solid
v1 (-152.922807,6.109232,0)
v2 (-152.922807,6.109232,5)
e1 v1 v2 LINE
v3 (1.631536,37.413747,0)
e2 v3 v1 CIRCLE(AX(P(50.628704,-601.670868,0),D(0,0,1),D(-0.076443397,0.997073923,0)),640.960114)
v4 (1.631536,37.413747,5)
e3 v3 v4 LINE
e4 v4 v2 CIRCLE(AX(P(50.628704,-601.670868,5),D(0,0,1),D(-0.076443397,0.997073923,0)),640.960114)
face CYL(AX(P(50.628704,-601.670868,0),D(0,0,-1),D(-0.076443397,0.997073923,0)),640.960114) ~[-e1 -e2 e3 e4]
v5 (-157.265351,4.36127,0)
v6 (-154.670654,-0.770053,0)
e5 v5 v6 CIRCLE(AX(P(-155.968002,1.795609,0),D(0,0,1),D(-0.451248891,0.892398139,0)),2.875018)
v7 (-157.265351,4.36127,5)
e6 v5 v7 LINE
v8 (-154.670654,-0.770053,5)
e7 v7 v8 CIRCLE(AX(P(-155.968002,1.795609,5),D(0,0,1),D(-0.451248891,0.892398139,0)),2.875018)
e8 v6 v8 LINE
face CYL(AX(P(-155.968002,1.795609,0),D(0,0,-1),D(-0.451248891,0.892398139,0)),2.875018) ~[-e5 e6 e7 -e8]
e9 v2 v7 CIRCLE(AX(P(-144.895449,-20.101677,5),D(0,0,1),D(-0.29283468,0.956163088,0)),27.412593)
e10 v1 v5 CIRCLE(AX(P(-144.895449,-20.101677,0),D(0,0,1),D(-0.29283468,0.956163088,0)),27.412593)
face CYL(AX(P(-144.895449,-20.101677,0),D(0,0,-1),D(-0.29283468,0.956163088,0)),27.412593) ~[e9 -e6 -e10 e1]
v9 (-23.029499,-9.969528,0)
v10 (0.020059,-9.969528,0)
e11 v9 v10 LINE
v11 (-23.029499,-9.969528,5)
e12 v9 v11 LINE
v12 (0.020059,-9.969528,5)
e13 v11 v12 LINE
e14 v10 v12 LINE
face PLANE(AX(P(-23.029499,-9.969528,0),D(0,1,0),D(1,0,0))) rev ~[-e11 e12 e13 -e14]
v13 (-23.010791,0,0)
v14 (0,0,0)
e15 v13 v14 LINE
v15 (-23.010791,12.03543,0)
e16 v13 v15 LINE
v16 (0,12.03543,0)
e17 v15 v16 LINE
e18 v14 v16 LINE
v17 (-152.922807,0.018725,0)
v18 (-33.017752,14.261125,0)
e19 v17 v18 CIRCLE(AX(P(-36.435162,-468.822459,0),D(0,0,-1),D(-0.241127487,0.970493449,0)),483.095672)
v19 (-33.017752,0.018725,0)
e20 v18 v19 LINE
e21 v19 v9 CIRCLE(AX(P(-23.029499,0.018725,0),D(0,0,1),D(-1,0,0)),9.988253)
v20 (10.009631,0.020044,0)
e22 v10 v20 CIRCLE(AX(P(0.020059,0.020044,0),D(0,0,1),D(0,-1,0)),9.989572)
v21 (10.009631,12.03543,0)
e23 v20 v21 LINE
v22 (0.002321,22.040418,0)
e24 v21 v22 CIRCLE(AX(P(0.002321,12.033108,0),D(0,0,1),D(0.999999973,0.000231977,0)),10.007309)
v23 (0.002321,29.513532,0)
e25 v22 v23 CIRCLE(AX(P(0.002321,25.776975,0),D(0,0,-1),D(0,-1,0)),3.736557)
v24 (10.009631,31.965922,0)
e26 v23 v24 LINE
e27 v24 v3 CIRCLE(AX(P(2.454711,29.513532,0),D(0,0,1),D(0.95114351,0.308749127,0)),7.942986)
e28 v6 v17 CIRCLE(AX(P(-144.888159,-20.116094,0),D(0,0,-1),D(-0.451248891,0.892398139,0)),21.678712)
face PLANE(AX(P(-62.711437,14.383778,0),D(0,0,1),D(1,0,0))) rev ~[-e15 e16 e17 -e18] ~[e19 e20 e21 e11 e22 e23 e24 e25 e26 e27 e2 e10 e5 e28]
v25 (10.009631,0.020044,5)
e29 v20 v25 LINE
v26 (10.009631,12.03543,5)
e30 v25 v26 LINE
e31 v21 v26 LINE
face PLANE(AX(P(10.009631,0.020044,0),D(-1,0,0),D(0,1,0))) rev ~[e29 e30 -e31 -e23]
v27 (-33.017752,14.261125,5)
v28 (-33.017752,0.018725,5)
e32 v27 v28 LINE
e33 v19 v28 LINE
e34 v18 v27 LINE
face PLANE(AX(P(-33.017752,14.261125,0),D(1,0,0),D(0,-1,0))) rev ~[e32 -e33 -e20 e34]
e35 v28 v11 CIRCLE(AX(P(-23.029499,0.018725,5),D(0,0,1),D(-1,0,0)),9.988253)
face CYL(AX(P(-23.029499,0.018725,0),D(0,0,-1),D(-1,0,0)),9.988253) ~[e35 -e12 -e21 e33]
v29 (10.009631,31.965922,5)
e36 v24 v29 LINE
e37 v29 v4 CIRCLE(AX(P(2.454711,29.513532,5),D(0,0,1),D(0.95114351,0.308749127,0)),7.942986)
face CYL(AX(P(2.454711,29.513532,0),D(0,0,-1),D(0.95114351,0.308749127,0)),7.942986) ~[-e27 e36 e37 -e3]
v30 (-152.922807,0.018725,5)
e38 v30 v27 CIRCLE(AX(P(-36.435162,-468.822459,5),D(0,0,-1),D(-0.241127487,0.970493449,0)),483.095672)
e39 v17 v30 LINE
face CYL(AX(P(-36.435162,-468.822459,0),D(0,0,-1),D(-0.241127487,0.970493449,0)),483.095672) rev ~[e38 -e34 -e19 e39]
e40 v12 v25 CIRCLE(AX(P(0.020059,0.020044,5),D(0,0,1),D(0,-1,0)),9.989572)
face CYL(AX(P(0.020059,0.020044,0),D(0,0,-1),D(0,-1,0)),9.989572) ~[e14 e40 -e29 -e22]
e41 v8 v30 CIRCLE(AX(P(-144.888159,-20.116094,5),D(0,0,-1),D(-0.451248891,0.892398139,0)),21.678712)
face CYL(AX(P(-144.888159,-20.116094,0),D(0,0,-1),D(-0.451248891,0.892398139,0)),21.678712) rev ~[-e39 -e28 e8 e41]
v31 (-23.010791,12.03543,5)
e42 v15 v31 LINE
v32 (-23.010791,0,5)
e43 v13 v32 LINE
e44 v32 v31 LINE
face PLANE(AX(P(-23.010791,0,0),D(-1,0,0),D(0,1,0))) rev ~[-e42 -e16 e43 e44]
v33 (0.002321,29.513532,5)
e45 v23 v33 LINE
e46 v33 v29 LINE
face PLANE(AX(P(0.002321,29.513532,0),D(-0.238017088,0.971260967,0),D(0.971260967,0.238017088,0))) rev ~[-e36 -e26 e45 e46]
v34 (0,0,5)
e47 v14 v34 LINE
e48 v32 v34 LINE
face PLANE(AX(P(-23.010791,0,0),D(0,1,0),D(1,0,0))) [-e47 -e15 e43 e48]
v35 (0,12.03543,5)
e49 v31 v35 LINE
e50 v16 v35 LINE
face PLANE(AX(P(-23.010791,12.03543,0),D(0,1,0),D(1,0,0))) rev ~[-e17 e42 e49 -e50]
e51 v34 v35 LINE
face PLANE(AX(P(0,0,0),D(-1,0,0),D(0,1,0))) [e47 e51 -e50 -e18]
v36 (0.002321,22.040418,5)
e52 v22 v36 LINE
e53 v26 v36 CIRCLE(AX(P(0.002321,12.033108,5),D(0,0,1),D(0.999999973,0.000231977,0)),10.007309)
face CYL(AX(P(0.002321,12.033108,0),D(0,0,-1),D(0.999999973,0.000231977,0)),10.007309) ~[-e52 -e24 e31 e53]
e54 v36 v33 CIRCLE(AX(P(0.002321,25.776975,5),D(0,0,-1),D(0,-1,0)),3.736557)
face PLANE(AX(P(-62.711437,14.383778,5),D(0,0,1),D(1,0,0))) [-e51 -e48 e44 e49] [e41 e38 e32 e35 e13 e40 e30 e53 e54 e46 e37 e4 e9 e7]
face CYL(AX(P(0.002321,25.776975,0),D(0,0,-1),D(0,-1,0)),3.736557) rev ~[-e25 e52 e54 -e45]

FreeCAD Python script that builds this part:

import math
import FreeCAD as App
import Part
import Sketcher
from FreeCAD import Vector


def add_polygon(sketch, points):
    """Adds a closed chain of lines whose ends are joined by coincident constraints."""
    first, n = sketch.GeometryCount, len(points)
    for a, b in zip(points, points[1:] + points[:1]):
        sketch.addGeometry(Part.LineSegment(App.Vector(*a, 0), App.Vector(*b, 0)), False)
    for i in range(n):
        sketch.addConstraint(Sketcher.Constraint("Coincident", first + i, 2, first + (i + 1) % n, 1))

doc = App.newDocument("Part")
body = doc.addObject("PartDesign::Body", "Body")

# Sketch on XY plane
sketch1 = doc.addObject("Sketcher::SketchObject", "Sketch")
body.addObject(sketch1)
sketch1.AttachmentSupport = (doc.XY_Plane, [""])
sketch1.MapMode = "FlatFace"
sketch1.addGeometry(Part.LineSegment(Vector(-23.029499, -9.969528, 0), Vector(0.020059, -9.969528, 0)), False)  # 0
sketch1.addGeometry(Part.ArcOfCircle(Part.Circle(Vector(0.020059, 0.020044, 0), Vector(0, 0, 1), 9.989572), math.radians(-90), math.radians(-0.000002)), False)  # 1
sketch1.addGeometry(Part.LineSegment(Vector(10.009631, 0.020044, 0), Vector(10.009631, 12.03543, 0)), False)  # 2
sketch1.addGeometry(Part.ArcOfCircle(Part.Circle(Vector(0.002321, 12.033108, 0), Vector(0, 0, 1), 10.007309), math.radians(0.013291), math.radians(90)), False)  # 3
sketch1.addGeometry(Part.ArcOfCircle(Part.Circle(Vector(0.002321, 25.776975, 0), Vector(0, 0, 1), 3.736557), math.radians(90), math.radians(270)), False)  # 4
sketch1.addGeometry(Part.LineSegment(Vector(0.002321, 29.513532, 0), Vector(10.009631, 31.965922, 0)), False)  # 5
sketch1.addGeometry(Part.ArcOfCircle(Part.Circle(Vector(2.454711, 29.513532, 0), Vector(0, 0, 1), 7.942986), math.radians(17.983863), math.radians(95.948559)), False)  # 6
sketch1.addGeometry(Part.ArcOfCircle(Part.Circle(Vector(50.628704, -601.670868, 0), Vector(0, 0, 1), 640.960114), math.radians(94.384161), math.radians(108.516203)), False)  # 7
sketch1.addGeometry(Part.ArcOfCircle(Part.Circle(Vector(-144.895449, -20.101677, 0), Vector(0, 0, 1), 27.412593), math.radians(107.027741), math.radians(116.82384)), False)  # 8
sketch1.addGeometry(Part.ArcOfCircle(Part.Circle(Vector(-155.968002, 1.795609, 0), Vector(0, 0, 1), 2.875018), math.radians(116.82384), math.radians(296.82384)), False)  # 9
sketch1.addGeometry(Part.ArcOfCircle(Part.Circle(Vector(-144.888159, -20.116094, 0), Vector(0, 0, 1), 21.678712), math.radians(111.754098), math.radians(116.82384)), False)  # 10
sketch1.addGeometry(Part.ArcOfCircle(Part.Circle(Vector(-36.435162, -468.822459, 0), Vector(0, 0, 1), 483.095672), math.radians(89.594687), math.radians(103.953095)), False)  # 11
sketch1.addGeometry(Part.LineSegment(Vector(-33.017752, 14.261125, 0), Vector(-33.017752, 0.018725, 0)), False)  # 12
sketch1.addGeometry(Part.ArcOfCircle(Part.Circle(Vector(-23.029499, 0.018725, 0), Vector(0, 0, 1), 9.988253), math.radians(180), math.radians(270)), False)  # 13
add_polygon(sketch1, [(0, 0), (-23.010791, 0), (-23.010791, 12.03543), (0, 12.03543)])  # lines 14-17
sketch1.addConstraint([
    Sketcher.Constraint("Tangent", 0, 2, 1, 1),
    Sketcher.Constraint("Tangent", 1, 2, 2, 1),
    Sketcher.Constraint("Coincident", 2, 2, 3, 1),
    Sketcher.Constraint("Tangent", 3, 2, 4, 2),
    Sketcher.Constraint("Coincident", 4, 1, 5, 1),
    Sketcher.Constraint("Coincident", 5, 2, 6, 1),
    Sketcher.Constraint("Coincident", 6, 2, 7, 1),
    Sketcher.Constraint("Coincident", 7, 2, 8, 1),
    Sketcher.Constraint("Tangent", 8, 2, 9, 1),
    Sketcher.Constraint("Tangent", 9, 2, 10, 2),
    Sketcher.Constraint("Coincident", 10, 1, 11, 2),
    Sketcher.Constraint("Coincident", 11, 1, 12, 1),
    Sketcher.Constraint("Tangent", 12, 2, 13, 1),
    Sketcher.Constraint("Tangent", 13, 2, 0, 1),
    Sketcher.Constraint("Horizontal", 0),
    Sketcher.Constraint("Vertical", 2),
    Sketcher.Constraint("Vertical", 12),
    Sketcher.Constraint("Horizontal", 14),
    Sketcher.Constraint("Vertical", 15),
    Sketcher.Constraint("Horizontal", 16),
    Sketcher.Constraint("Vertical", 17),
    Sketcher.Constraint("Coincident", 17, 2, -1, 1),
    Sketcher.Constraint("Horizontal", 6, 3, 4, 1),
    Sketcher.Constraint("Horizontal", 13, 3, 10, 1),
    Sketcher.Constraint("Horizontal", 2, 2, 15, 2),
    Sketcher.Constraint("Vertical", 3, 3, 4, 3),
    Sketcher.Constraint("Vertical", 3, 2, 4, 1),
    Sketcher.Constraint("Vertical", 2, 2, 5, 2),
    Sketcher.Constraint("Vertical", 7, 2, 10, 1),
    Sketcher.Constraint("Radius", 1, 9.989572),
    Sketcher.Constraint("Radius", 3, 10.007309),
    Sketcher.Constraint("Radius", 9, 2.875018),
    Sketcher.Constraint("Radius", 10, 21.678712),
    Sketcher.Constraint("Radius", 11, 483.095672),
    Sketcher.Constraint("DistanceY", 12, 2, 12, 1, 14.242399),
    Sketcher.Constraint("Radius", 4, 3.736557),
    Sketcher.Constraint("Radius", 6, 7.942986),
    Sketcher.Constraint("Radius", 7, 640.960114),
    Sketcher.Constraint("Radius", 8, 27.412593),
    Sketcher.Constraint("Radius", 13, 9.988253),
    Sketcher.Constraint("DistanceX", 14, 2, 14, 1, 23.010791),
    Sketcher.Constraint("DistanceY", 15, 1, 15, 2, 12.03543),
    Sketcher.Constraint("DistanceX", 13, 3, -1, 1, 23.029499),
    Sketcher.Constraint("DistanceY", 7, 3, 6, 3, 631.184399),
    Sketcher.Constraint("DistanceY", 9, 3, 3, 3, 10.237499),
    Sketcher.Constraint("Distance", 5, 10.30342),
    Sketcher.Constraint("DistanceX", 0, 1, 0, 2, 23.049558),
    Sketcher.Constraint("DistanceY", 2, 1, 2, 2, 12.015386),
    Sketcher.Constraint("DistanceY", -1, 1, 3, 3, 12.033108),
    Sketcher.Constraint("DistanceX", 8, 3, -1, 1, 144.895449),
    Sketcher.Constraint("DistanceX", 10, 3, -1, 1, 144.888159),
    Sketcher.Constraint("DistanceX", 11, 3, -1, 1, 36.435162),
])
pad1 = doc.addObject("PartDesign::Pad", "Pad")
body.addObject(pad1)
pad1.Profile = sketch1
pad1.Length = 5

doc.recompute()
